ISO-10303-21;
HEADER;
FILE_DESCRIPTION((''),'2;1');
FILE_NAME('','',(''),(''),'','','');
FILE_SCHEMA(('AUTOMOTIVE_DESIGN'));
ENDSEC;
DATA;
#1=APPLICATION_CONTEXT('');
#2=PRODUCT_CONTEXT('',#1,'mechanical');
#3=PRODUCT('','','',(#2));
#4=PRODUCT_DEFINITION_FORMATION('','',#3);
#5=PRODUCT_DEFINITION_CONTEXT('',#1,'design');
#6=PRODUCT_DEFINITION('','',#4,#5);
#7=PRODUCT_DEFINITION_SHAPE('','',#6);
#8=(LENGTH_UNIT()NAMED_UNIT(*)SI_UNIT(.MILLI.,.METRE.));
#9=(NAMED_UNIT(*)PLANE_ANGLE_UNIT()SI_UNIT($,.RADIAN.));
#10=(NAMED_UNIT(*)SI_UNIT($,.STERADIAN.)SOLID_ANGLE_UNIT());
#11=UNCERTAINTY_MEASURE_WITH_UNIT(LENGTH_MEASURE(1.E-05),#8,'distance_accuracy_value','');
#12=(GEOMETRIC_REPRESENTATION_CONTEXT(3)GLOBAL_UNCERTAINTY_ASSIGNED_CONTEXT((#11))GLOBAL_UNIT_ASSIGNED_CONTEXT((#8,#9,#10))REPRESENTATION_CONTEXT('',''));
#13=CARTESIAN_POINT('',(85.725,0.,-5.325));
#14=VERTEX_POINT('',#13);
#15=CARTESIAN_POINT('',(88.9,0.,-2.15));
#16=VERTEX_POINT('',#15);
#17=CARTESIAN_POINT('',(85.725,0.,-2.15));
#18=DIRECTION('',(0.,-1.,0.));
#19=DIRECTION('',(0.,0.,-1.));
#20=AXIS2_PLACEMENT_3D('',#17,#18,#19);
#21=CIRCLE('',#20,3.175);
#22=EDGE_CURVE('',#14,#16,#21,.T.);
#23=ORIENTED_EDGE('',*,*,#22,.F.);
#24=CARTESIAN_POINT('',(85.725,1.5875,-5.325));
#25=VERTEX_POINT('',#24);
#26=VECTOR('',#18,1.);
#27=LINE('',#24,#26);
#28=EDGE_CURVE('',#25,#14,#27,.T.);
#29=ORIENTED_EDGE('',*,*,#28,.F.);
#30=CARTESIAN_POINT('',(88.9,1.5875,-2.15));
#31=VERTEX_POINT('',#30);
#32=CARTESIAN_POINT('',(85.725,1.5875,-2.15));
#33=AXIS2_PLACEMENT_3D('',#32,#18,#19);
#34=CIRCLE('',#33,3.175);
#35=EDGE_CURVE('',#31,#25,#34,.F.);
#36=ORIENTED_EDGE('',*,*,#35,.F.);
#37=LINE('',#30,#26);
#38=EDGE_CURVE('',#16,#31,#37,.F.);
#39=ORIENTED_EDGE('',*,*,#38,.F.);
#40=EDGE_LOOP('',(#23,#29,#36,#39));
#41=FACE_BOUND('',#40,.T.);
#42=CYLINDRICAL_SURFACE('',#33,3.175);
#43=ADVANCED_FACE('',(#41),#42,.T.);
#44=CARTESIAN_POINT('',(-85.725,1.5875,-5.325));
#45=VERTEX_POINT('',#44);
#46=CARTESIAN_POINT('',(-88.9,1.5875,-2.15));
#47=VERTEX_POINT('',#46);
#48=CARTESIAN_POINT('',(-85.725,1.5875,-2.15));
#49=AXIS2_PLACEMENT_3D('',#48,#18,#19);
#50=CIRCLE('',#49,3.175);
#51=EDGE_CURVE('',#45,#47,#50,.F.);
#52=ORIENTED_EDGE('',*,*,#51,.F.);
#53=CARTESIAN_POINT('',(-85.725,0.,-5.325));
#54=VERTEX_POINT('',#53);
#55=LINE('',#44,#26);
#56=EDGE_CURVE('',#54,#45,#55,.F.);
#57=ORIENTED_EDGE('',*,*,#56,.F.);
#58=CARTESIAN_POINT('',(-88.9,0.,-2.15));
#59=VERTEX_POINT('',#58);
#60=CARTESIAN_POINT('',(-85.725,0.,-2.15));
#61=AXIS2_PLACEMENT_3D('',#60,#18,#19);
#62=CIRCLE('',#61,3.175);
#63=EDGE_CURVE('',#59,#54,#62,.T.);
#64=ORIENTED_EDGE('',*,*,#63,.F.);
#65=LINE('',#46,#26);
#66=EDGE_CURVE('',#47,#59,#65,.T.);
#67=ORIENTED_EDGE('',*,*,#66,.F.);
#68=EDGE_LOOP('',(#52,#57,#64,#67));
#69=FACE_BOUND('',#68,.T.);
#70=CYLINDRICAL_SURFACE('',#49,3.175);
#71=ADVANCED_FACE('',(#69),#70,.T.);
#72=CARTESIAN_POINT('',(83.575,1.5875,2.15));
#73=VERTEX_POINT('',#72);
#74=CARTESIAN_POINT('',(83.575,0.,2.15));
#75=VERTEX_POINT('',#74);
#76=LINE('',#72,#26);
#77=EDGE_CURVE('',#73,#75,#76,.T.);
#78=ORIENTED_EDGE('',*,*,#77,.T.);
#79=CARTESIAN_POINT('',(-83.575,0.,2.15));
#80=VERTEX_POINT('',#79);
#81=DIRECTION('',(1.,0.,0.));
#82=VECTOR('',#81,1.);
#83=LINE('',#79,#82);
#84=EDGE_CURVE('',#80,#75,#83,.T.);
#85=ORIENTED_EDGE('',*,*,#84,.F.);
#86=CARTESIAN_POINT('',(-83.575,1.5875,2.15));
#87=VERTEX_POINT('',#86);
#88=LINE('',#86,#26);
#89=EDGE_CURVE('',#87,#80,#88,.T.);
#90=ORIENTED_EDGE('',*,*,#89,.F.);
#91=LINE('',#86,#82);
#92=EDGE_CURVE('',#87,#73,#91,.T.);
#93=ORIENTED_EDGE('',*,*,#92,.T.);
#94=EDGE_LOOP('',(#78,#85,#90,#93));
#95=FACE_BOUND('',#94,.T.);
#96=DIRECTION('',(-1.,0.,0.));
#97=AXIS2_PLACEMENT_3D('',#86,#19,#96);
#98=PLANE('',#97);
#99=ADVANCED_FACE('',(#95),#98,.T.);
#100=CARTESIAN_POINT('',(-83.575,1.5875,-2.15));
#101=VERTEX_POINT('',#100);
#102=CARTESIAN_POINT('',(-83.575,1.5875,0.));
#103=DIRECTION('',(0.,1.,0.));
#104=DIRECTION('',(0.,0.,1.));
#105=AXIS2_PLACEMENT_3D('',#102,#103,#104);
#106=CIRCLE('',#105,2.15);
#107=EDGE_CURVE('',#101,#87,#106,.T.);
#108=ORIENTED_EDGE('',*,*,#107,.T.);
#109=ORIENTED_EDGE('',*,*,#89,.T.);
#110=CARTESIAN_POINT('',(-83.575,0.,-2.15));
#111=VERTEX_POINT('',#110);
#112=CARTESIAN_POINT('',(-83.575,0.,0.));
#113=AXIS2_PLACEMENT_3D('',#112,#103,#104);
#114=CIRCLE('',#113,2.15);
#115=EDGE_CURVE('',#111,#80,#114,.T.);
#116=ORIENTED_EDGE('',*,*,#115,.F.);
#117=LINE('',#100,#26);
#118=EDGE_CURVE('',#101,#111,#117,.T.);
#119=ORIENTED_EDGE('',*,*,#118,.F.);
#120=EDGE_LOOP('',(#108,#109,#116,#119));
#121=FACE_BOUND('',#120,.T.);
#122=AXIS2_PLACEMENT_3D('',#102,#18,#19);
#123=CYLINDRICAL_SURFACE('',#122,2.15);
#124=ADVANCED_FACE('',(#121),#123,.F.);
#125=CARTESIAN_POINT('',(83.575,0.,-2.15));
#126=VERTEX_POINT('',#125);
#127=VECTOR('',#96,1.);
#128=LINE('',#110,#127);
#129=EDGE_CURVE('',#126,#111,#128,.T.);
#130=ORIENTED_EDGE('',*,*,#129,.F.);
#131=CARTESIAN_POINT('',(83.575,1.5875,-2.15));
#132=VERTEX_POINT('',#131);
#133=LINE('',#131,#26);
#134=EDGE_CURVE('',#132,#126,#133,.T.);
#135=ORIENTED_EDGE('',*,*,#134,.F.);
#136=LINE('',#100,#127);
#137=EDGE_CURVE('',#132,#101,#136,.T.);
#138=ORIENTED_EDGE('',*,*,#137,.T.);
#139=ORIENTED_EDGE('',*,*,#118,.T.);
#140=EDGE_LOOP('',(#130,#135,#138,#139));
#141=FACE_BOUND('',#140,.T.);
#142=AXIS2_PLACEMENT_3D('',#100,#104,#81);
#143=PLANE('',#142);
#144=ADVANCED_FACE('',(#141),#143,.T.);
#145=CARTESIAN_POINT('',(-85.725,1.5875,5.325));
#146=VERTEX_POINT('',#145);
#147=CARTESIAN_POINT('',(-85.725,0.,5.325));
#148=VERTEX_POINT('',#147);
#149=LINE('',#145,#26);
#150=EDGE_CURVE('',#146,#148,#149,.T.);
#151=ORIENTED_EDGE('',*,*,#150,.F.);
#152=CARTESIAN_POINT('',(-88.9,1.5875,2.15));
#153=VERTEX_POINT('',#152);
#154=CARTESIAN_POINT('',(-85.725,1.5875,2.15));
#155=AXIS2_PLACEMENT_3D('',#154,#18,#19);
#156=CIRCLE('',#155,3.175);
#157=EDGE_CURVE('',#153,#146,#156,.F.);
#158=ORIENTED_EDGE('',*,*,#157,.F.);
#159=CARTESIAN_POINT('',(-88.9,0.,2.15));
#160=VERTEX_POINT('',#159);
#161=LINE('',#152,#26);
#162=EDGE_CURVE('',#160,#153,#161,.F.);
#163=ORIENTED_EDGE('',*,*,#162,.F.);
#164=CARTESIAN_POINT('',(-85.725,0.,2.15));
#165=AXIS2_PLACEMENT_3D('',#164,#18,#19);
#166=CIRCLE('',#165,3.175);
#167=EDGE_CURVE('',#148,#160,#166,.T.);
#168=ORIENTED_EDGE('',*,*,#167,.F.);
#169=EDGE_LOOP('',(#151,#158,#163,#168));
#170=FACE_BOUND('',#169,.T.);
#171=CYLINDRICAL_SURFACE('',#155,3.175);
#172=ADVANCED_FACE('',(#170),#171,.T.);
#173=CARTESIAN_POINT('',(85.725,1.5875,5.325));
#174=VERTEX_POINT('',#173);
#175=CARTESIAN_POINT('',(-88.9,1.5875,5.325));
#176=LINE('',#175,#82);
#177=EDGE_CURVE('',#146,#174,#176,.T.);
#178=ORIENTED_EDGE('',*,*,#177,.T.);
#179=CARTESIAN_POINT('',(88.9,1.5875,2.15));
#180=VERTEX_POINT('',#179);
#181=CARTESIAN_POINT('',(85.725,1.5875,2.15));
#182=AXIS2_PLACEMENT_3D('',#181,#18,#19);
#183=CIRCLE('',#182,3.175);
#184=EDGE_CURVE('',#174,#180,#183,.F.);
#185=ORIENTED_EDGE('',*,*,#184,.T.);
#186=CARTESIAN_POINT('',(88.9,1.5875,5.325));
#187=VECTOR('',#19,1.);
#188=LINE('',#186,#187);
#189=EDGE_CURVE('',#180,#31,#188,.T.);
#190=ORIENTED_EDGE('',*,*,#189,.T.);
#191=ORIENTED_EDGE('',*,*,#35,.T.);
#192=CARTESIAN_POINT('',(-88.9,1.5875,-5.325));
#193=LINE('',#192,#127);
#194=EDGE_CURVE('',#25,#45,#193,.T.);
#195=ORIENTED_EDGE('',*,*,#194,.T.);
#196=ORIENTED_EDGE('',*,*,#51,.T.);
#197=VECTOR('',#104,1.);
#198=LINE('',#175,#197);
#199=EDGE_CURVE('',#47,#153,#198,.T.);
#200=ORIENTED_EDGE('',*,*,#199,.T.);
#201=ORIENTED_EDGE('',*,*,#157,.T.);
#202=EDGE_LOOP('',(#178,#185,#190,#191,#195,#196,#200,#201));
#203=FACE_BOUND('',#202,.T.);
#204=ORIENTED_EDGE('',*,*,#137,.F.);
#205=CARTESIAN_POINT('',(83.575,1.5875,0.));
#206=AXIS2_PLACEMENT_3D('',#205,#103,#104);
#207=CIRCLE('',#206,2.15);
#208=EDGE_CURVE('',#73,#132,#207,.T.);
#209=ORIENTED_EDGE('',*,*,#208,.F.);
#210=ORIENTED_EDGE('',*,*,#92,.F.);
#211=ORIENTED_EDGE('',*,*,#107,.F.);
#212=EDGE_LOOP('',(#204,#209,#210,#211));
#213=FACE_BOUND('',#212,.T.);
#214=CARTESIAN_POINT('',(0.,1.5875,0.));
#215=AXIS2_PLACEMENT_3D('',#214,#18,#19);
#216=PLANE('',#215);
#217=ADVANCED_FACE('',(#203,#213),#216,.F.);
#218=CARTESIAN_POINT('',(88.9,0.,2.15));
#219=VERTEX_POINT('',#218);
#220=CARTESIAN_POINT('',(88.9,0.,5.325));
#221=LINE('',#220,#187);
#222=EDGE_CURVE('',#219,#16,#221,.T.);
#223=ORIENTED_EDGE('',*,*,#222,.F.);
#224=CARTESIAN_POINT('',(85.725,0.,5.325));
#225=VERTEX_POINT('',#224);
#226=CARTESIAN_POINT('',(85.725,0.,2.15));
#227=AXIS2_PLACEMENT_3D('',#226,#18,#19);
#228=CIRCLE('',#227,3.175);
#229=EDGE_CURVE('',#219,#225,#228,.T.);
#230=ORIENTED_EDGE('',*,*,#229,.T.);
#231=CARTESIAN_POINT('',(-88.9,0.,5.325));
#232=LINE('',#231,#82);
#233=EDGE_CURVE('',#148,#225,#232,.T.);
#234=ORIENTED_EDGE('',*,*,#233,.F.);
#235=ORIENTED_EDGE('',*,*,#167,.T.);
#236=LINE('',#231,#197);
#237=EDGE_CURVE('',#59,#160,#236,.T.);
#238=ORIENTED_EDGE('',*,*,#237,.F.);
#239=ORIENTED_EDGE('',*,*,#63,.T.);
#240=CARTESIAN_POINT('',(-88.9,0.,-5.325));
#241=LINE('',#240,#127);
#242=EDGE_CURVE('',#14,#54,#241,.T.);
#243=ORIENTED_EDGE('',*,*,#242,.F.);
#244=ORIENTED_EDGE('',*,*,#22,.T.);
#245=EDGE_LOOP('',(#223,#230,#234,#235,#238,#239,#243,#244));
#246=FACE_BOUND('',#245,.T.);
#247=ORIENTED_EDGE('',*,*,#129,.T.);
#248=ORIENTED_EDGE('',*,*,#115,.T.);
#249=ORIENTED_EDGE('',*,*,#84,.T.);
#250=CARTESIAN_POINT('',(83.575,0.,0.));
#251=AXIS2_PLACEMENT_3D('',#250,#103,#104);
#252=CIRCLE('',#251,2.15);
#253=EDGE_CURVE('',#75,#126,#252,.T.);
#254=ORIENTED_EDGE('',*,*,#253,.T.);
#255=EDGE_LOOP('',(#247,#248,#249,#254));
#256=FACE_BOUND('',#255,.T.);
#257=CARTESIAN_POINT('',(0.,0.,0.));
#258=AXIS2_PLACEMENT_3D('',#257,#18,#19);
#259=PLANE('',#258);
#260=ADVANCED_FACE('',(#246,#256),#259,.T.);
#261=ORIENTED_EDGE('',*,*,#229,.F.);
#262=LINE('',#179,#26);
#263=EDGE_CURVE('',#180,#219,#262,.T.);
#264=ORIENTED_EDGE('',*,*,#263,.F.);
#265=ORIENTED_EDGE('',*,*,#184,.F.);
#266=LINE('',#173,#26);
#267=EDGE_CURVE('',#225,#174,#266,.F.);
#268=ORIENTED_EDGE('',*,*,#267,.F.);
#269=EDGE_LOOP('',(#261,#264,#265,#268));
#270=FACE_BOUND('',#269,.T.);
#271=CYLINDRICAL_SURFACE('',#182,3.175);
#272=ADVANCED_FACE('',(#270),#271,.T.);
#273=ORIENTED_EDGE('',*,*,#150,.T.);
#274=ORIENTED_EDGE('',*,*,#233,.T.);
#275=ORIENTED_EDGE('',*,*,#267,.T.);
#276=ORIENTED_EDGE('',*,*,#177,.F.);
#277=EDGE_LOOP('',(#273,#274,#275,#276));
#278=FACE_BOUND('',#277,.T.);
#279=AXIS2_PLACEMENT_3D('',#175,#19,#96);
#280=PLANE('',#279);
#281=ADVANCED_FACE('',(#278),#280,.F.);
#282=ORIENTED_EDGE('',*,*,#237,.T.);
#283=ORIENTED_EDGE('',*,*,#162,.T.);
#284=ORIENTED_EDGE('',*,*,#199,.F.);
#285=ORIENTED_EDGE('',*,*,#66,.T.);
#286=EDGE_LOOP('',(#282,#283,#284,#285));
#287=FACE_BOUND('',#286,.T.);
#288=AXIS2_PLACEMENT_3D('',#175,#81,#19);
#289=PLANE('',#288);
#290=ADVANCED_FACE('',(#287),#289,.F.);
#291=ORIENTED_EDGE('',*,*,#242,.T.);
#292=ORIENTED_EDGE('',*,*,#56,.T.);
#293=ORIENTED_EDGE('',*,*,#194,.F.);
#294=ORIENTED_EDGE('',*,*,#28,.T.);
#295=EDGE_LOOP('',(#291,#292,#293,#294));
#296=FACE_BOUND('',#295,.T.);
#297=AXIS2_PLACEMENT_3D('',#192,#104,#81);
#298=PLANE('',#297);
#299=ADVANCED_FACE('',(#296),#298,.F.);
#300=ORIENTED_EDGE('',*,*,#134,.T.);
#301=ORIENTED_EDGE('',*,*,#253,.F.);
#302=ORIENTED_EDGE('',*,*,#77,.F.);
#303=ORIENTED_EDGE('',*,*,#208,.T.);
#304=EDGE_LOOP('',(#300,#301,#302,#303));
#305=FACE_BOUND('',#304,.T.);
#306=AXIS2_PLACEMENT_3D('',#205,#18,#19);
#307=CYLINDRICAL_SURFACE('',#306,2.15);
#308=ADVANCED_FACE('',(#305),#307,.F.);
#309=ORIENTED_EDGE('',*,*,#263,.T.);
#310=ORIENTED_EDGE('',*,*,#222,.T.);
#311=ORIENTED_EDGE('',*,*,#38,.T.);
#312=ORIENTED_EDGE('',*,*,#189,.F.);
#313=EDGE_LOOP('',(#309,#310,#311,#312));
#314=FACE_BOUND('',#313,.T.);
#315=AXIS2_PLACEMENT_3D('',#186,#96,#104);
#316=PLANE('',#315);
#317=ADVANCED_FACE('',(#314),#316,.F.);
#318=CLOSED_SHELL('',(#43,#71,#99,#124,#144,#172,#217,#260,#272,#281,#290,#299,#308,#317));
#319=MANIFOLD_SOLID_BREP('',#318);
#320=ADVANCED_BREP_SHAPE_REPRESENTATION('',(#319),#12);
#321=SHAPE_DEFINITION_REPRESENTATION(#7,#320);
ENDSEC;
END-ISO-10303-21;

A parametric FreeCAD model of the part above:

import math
import FreeCAD as App
import Part
import Sketcher
from FreeCAD import Vector
Q = App.Units.Quantity


def edges_at(feature, points):
    """Names of the edges that pass closest to the given points."""
    edges = feature.Shape.Edges
    near = lambda p: min(range(len(edges)), key=lambda i: edges[i].distToShape(Part.Vertex(*p))[0])
    return sorted({f"Edge{near(p) + 1}" for p in points})


def add_polygon(sketch, points):
    """Adds a closed chain of lines whose ends are joined by coincident constraints."""
    first, n = sketch.GeometryCount, len(points)
    for a, b in zip(points, points[1:] + points[:1]):
        sketch.addGeometry(Part.LineSegment(App.Vector(*a, 0), App.Vector(*b, 0)), False)
    for i in range(n):
        sketch.addConstraint(Sketcher.Constraint("Coincident", first + i, 2, first + (i + 1) % n, 1))

doc = App.newDocument("Part")
params = doc.addObject("Spreadsheet::Sheet", "Params")
for row, (alias, value) in enumerate([
    ("sketch1_width", "7 in"),
    ("pad1_length", "0.0625 in"),
    ("fillet_radius", "0.125 in"),
], start=1):
    params.set(f"A{row}", alias)
    params.set(f"B{row}", "=" + value)
    params.setAlias(f"B{row}", alias)

body = doc.addObject("PartDesign::Body", "Body")

sketch1 = body.newObject("Sketcher::SketchObject", "Sketch")
sketch1.AttachmentSupport = (doc.getObject("XZ_Plane"), [""])
sketch1.MapMode = "FlatFace"
add_polygon(sketch1, [(-88.9, -5.325), (-88.9, 5.325), (88.9, 5.325), (88.9, -5.325)])
sketch1.addGeometry(Part.ArcOfCircle(Part.Circle(Vector(-83.575, 0, 0), Vector(0, 0, 1), 2.15), math.radians(90), math.radians(270)), False)
sketch1.addGeometry(Part.LineSegment(Vector(-83.575, -2.15, 0), Vector(83.575, -2.15, 0)), False)
sketch1.addGeometry(Part.ArcOfCircle(Part.Circle(Vector(83.575, 0, 0), Vector(0, 0, 1), 2.15), math.radians(-90), math.radians(90)), False)
sketch1.addGeometry(Part.LineSegment(Vector(83.575, 2.15, 0), Vector(-83.575, 2.15, 0)), False)
sketch1.addConstraint([
    Sketcher.Constraint("Tangent", 4, 2, 5, 1),
    Sketcher.Constraint("Tangent", 5, 2, 6, 1),
    Sketcher.Constraint("Tangent", 6, 2, 7, 1),
    Sketcher.Constraint("Tangent", 7, 2, 4, 1),
    Sketcher.Constraint("Vertical", 0),
    Sketcher.Constraint("Horizontal", 1),
    Sketcher.Constraint("Vertical", 2),
    Sketcher.Constraint("Horizontal", 3),
    Sketcher.Constraint("Horizontal", 5),
    Sketcher.Constraint("Horizontal", 7),
    Sketcher.Constraint("Symmetric", 4, 3, 6, 3, -1, 1),
    Sketcher.Constraint("Symmetric", 0, 2, 2, 2, -1, 1),
    Sketcher.Constraint("DistanceX", 1, 1, 1, 2, Q("7 in")),
    Sketcher.Constraint("Radius", 4, Q("2.15 mm")),
    Sketcher.Constraint("DistanceY", 3, 2, 4, 2, Q("0.125 in")),
    Sketcher.Constraint("DistanceX", 5, 1, 5, 2, Q("167.15 mm")),
])
sketch1.setExpression("Constraints[16]", "Params.sketch1_width")
pad1 = body.newObject("PartDesign::Pad", "Pad")
pad1.Profile = sketch1
pad1.setExpression("Length", "Params.pad1_length")
pad1.Reversed = True
doc.recompute()

fillet = body.newObject("PartDesign::Fillet", "Fillet")
fillet.Base = (pad1, edges_at(pad1, [
    (88.9, 0.794, 5.325),
    (-88.9, 0.794, 5.325),
    (-88.9, 0.794, -5.325),
    (88.9, 0.794, -5.325),
]))
fillet.setExpression("Radius", "Params.fillet_radius")

doc.recompute()
